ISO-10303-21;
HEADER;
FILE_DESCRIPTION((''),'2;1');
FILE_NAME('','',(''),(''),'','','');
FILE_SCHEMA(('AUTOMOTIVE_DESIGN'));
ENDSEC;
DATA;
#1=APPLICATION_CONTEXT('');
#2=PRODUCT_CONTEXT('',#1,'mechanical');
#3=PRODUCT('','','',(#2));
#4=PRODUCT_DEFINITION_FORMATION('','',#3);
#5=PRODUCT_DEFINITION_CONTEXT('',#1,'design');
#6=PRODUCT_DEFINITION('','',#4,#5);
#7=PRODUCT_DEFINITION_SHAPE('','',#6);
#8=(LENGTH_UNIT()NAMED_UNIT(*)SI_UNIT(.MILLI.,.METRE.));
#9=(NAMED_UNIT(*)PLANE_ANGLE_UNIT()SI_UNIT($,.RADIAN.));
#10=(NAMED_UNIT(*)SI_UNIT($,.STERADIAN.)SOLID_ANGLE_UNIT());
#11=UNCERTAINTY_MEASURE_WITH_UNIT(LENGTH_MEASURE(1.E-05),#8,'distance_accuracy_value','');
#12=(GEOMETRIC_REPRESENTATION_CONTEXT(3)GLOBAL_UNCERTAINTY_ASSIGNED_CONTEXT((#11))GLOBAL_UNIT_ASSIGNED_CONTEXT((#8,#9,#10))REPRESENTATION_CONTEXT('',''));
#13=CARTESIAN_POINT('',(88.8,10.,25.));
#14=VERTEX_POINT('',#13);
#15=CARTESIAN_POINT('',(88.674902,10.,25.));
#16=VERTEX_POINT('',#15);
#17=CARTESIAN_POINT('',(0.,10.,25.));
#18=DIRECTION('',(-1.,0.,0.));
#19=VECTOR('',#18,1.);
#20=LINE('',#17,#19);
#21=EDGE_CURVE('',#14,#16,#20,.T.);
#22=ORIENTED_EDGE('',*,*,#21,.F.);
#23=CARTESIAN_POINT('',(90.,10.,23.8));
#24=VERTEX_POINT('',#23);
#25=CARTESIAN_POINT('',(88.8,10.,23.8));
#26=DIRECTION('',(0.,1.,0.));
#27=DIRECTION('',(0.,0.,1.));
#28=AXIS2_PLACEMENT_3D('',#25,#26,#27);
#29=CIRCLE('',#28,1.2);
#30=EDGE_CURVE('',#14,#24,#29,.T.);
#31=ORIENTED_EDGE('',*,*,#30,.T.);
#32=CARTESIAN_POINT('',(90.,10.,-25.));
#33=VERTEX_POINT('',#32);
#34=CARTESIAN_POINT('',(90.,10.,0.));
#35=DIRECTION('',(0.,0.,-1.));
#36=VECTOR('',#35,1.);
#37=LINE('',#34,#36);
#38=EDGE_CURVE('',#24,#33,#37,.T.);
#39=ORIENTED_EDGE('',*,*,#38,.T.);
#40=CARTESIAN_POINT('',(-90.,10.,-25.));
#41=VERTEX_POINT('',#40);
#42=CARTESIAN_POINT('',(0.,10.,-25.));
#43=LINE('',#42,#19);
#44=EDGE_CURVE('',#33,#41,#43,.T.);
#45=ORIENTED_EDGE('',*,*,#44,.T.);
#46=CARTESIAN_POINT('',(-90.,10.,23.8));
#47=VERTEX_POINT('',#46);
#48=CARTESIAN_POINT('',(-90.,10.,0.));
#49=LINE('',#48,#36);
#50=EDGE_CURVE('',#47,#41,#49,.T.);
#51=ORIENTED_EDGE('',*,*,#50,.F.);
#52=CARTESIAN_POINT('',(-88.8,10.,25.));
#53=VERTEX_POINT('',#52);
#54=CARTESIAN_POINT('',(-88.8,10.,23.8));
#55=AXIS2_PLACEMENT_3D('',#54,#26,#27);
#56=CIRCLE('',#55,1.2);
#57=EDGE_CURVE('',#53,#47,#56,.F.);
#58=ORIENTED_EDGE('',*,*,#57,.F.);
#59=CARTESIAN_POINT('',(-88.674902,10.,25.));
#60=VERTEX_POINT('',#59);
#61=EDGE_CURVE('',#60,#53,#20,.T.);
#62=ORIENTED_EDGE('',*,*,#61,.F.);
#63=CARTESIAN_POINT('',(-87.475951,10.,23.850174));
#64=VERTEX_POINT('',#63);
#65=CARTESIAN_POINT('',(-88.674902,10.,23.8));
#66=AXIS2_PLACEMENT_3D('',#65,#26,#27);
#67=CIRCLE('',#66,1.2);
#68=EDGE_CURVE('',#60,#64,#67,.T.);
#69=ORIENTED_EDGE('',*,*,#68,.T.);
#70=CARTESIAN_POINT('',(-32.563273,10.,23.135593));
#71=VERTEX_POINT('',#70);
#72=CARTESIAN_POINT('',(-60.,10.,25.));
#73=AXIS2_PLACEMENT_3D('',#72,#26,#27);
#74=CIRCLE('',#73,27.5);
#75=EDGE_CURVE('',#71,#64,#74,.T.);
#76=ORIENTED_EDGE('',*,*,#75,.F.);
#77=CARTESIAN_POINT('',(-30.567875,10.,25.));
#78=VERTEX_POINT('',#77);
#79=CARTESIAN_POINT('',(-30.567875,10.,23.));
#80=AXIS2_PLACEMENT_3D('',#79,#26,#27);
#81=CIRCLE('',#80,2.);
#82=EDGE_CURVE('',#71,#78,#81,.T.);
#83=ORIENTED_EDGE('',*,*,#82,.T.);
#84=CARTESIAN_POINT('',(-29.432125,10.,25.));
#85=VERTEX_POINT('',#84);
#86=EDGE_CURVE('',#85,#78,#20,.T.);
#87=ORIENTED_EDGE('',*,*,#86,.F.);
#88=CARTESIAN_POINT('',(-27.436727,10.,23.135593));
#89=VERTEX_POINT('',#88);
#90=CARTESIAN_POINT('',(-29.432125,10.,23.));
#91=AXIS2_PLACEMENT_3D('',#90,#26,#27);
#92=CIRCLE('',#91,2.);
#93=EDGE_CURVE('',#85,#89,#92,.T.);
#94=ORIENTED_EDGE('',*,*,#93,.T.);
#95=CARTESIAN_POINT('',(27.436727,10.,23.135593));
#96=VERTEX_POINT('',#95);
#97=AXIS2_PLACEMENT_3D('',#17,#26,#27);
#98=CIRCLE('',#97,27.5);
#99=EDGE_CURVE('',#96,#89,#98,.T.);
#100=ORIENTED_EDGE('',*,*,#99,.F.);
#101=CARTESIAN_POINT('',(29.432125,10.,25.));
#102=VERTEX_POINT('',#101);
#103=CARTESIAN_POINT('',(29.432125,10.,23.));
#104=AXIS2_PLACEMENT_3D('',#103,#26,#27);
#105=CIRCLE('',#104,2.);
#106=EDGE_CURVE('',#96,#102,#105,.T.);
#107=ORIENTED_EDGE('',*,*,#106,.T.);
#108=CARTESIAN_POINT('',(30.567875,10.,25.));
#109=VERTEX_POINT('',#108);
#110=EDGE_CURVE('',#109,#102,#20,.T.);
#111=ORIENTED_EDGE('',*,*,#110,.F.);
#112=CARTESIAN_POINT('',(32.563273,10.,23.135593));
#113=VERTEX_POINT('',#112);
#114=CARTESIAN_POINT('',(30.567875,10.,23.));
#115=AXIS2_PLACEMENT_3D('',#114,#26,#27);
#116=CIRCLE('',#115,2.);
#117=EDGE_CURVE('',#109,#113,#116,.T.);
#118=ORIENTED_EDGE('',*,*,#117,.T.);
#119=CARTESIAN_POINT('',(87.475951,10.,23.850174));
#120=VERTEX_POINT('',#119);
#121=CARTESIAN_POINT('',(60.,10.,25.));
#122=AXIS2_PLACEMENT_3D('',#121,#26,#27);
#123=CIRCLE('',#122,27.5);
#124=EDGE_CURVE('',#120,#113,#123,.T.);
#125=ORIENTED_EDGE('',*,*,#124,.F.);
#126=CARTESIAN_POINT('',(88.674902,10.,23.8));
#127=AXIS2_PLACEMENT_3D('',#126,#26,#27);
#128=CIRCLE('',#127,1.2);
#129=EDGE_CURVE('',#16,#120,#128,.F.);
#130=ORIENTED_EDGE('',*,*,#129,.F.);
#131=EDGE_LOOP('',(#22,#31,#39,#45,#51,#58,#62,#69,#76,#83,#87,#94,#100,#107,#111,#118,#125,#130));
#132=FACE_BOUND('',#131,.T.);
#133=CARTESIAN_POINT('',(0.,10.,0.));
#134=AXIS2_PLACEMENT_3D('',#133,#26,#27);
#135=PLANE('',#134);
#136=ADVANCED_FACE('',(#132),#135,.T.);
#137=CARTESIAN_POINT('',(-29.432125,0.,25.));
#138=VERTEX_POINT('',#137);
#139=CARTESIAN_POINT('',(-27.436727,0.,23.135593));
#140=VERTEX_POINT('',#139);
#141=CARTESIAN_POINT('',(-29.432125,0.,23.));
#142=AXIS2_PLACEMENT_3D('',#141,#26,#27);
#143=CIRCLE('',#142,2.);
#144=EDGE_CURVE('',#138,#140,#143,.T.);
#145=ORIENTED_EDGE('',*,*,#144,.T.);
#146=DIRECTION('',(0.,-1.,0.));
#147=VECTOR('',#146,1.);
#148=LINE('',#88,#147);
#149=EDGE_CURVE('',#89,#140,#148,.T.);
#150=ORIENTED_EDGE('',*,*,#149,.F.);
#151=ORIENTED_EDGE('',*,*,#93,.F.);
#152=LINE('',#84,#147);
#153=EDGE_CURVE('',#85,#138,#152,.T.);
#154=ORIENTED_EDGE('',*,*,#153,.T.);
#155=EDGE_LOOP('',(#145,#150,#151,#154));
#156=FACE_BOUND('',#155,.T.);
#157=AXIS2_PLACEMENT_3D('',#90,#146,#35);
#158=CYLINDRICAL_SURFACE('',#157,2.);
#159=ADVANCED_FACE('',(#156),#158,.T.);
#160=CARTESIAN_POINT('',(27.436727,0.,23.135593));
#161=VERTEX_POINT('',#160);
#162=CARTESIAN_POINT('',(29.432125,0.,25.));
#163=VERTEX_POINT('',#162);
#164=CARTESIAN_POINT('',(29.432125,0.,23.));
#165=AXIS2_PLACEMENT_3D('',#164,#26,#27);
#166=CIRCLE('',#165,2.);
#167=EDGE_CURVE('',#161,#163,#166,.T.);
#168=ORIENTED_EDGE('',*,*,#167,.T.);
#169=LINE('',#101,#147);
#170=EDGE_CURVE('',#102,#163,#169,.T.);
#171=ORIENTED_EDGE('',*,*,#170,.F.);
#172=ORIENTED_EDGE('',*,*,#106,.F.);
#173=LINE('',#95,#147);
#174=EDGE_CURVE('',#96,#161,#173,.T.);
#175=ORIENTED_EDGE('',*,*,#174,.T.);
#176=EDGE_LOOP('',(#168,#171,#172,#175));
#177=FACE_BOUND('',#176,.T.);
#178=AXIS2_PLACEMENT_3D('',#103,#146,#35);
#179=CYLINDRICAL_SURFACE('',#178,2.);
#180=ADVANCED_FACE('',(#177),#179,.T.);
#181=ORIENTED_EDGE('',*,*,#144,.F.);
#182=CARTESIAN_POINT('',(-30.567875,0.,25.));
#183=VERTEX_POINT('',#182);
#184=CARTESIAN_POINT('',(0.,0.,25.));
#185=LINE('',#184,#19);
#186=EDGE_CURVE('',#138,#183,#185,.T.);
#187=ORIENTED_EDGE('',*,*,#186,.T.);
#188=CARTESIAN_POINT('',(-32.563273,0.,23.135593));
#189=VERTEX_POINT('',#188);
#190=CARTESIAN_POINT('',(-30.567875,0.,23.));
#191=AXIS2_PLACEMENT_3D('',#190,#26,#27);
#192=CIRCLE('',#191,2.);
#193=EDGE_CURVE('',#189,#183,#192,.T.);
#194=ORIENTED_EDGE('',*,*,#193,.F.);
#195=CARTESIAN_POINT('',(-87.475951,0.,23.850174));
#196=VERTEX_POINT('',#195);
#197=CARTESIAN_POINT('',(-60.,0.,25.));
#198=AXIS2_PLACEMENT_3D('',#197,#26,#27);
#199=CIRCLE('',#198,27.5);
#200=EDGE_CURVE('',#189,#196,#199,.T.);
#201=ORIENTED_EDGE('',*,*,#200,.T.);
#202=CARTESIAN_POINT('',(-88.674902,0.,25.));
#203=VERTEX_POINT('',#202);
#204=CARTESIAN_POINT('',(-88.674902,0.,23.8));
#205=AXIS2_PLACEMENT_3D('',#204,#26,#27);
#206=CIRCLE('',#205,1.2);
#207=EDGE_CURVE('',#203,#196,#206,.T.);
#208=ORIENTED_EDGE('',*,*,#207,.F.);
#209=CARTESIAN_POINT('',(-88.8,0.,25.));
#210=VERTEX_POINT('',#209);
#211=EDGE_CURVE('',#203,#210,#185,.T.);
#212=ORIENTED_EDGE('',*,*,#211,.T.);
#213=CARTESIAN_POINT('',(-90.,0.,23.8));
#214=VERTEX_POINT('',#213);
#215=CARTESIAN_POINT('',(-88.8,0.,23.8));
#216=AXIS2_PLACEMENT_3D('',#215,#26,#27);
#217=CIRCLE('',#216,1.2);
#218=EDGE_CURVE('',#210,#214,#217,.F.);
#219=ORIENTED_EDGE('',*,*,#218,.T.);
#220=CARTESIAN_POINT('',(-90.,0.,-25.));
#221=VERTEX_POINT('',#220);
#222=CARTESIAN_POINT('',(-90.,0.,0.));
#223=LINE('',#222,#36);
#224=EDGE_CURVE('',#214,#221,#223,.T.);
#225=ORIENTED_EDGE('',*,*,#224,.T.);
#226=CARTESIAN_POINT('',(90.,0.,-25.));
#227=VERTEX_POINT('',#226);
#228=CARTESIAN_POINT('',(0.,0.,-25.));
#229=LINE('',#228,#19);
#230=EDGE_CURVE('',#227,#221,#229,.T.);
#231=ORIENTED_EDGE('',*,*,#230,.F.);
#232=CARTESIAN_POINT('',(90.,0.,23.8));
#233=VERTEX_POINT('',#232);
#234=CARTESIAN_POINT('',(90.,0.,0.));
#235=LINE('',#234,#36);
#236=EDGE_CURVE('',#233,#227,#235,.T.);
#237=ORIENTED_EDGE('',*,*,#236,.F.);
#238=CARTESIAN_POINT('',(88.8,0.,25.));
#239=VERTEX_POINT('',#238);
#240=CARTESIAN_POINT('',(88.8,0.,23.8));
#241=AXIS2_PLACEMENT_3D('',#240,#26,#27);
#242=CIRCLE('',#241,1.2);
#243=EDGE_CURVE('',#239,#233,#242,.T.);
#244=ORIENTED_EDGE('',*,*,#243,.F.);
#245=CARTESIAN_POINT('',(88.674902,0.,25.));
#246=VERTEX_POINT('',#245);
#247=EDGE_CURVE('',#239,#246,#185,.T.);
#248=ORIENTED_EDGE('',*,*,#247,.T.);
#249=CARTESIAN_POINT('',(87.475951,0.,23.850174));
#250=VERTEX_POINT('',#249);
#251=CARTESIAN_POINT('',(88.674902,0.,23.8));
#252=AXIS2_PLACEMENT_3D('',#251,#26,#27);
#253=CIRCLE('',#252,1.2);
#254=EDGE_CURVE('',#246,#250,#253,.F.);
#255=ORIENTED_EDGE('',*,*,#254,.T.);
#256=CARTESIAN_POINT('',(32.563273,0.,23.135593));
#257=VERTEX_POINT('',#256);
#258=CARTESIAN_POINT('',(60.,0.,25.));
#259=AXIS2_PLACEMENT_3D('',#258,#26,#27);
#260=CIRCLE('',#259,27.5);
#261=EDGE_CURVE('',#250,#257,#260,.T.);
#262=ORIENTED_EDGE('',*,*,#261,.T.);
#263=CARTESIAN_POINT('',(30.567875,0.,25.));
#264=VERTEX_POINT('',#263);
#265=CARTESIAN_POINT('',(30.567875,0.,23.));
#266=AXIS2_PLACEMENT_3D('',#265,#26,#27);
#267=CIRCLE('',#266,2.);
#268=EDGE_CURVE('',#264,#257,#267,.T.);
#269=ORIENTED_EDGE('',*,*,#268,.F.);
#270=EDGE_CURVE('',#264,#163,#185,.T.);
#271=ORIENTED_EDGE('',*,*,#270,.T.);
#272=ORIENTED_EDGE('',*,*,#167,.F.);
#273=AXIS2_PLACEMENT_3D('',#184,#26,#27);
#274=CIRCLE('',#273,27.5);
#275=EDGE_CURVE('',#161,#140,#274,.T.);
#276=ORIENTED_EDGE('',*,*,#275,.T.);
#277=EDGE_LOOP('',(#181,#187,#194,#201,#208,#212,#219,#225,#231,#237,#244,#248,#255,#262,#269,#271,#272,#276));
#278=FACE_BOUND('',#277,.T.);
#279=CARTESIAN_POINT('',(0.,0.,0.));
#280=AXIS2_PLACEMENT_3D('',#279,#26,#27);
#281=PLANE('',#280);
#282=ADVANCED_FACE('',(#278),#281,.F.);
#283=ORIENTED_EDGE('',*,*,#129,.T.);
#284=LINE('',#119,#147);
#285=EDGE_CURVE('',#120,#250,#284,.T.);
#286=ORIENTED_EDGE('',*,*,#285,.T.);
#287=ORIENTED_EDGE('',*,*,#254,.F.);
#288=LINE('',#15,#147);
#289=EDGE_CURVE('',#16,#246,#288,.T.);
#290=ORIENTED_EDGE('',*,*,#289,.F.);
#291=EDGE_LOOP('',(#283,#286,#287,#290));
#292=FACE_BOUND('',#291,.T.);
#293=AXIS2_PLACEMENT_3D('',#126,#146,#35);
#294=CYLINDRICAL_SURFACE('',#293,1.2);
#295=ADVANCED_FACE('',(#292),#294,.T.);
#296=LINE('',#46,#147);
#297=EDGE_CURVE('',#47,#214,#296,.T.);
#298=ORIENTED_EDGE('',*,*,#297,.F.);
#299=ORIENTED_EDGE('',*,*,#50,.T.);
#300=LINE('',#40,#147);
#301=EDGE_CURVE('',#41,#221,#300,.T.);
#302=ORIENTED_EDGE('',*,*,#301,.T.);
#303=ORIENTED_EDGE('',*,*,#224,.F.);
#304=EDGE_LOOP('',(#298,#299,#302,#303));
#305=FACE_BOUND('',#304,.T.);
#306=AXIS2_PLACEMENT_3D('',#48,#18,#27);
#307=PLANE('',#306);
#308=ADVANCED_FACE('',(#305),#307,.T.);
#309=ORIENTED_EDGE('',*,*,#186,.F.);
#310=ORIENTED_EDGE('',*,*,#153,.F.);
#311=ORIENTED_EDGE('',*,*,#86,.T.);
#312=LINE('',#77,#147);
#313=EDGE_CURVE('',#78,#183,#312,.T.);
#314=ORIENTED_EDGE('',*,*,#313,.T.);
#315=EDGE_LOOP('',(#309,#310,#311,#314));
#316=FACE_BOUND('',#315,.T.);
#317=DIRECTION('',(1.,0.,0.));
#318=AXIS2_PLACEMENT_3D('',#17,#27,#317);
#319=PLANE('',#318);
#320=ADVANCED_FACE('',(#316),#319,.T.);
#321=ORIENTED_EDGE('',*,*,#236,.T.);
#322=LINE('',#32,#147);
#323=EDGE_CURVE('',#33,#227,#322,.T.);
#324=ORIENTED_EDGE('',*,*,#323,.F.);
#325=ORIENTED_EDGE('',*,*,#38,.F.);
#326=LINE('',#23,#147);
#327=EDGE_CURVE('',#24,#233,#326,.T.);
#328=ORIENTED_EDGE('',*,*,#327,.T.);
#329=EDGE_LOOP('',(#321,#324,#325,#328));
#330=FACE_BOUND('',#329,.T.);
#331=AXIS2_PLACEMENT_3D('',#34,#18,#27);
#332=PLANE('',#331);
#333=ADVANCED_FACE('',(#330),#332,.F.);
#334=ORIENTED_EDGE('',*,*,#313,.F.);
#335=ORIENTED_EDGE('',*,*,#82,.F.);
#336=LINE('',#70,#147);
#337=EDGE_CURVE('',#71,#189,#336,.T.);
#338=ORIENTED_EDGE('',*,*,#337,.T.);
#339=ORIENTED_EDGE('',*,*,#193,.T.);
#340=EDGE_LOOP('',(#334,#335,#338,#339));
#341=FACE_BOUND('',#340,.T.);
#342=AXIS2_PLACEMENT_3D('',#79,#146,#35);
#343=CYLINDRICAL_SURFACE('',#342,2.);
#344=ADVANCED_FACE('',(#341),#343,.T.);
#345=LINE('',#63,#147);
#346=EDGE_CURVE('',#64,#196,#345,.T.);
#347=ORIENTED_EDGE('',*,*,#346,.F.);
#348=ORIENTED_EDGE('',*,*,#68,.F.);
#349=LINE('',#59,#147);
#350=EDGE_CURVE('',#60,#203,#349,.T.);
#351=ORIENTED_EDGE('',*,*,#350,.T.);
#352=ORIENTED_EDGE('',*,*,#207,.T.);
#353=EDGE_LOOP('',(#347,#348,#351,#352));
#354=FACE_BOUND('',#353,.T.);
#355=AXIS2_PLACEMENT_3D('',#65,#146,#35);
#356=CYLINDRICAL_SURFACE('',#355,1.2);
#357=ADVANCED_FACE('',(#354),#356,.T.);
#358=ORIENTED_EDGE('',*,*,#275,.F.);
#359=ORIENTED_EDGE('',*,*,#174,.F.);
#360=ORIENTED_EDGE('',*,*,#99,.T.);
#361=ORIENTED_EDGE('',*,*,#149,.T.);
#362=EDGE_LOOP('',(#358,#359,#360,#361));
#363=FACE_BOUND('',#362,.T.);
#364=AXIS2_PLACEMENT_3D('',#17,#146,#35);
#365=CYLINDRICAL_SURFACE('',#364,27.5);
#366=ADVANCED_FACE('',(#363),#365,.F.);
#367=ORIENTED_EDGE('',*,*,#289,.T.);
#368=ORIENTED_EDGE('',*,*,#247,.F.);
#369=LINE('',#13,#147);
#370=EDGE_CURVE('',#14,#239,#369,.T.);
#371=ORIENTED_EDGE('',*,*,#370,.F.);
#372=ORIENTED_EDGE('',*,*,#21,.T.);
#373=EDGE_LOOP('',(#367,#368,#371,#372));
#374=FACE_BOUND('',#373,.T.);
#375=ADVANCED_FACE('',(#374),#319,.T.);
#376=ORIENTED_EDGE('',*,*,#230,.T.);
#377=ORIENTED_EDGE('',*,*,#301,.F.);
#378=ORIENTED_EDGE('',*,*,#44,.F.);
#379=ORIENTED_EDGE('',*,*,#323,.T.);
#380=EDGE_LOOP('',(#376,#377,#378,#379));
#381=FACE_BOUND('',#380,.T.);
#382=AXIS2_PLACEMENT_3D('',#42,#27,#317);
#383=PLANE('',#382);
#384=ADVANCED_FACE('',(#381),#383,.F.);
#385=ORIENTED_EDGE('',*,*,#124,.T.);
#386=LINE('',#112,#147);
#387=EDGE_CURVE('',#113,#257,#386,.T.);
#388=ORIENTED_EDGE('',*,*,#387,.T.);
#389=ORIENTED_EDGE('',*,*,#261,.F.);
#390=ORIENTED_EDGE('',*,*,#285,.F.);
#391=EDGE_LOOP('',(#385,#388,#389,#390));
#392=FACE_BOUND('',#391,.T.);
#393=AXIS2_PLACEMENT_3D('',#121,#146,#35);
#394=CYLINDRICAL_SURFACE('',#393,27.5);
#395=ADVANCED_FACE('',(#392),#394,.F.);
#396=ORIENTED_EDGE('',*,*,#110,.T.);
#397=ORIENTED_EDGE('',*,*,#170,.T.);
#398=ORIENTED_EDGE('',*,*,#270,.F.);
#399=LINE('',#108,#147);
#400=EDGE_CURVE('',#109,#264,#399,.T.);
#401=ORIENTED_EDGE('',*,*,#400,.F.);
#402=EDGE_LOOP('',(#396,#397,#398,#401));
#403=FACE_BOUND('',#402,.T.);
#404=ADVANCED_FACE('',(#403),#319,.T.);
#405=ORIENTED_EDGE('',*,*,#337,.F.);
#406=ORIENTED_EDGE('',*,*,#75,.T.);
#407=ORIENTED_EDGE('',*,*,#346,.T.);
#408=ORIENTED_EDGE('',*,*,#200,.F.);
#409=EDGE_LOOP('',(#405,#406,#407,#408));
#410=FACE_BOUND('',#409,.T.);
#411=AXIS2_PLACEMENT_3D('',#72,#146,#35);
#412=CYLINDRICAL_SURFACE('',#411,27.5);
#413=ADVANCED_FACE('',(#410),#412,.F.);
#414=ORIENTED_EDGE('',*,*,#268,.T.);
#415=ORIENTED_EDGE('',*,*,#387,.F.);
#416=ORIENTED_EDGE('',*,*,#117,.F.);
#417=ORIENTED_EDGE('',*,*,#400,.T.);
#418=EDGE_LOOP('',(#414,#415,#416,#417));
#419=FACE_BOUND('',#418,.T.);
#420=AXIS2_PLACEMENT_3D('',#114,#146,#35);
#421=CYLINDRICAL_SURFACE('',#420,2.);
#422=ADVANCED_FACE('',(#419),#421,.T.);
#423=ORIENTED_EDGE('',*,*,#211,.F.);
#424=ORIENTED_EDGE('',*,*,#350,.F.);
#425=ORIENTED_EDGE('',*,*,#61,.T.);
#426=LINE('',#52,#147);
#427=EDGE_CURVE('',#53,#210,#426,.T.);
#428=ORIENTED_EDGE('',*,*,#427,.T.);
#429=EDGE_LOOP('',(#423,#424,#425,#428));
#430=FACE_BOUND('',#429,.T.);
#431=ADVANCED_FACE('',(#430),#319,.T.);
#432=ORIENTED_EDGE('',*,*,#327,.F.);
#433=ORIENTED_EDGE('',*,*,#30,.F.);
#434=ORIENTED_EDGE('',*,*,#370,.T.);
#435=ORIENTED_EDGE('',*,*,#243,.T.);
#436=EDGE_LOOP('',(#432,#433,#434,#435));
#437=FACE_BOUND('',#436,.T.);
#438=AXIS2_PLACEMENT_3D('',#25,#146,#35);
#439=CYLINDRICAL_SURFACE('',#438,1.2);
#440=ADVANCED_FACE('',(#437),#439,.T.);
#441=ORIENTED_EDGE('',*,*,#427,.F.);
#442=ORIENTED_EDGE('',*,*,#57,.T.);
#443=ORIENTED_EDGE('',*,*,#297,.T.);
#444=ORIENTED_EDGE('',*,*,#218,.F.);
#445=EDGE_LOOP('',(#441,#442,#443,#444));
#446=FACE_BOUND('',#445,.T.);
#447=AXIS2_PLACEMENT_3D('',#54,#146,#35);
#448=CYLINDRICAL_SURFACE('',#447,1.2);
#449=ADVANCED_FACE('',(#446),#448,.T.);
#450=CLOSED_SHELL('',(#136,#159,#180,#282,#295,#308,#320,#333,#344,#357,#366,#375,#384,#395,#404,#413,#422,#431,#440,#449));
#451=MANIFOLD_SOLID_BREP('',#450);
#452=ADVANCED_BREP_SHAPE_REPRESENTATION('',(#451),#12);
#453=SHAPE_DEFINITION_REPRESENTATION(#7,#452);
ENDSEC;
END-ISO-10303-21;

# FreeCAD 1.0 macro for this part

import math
import FreeCAD as App
import Part
import Sketcher
from FreeCAD import Vector

doc = App.newDocument("Part")
body = doc.addObject("PartDesign::Body", "Body")

# Sketch on XZ plane
sketch1 = body.newObject("Sketcher::SketchObject", "Sketch")
sketch1.AttachmentSupport = (doc.getObject("XZ_Plane"), [""])
sketch1.MapMode = "FlatFace"
sketch1.addGeometry([
    Part.LineSegment(Vector(-88.8, 25, 0), Vector(-88.67, 25, 0)),  # 0
    Part.ArcOfCircle(Part.Circle(Vector(-88.67, 23.8, 0), Vector(0, 0, 1), 1.2), math.radians(2), math.radians(90)),  # 1
    Part.ArcOfCircle(Part.Circle(Vector(-60, 25, 0), Vector(0, 0, 1), 27.5), math.radians(-178), math.radians(-4)),  # 2
    Part.ArcOfCircle(Part.Circle(Vector(-30.57, 23, 0), Vector(0, 0, 1), 2), math.radians(90), math.radians(176)),  # 3
    Part.LineSegment(Vector(-30.57, 25, 0), Vector(-29.43, 25, 0)),  # 4
    Part.ArcOfCircle(Part.Circle(Vector(-29.43, 23, 0), Vector(0, 0, 1), 2), math.radians(4), math.radians(90)),  # 5
    Part.ArcOfCircle(Part.Circle(Vector(0, 25, 0), Vector(0, 0, 1), 27.5), math.radians(-176), math.radians(-4)),  # 6
    Part.ArcOfCircle(Part.Circle(Vector(29.43, 23, 0), Vector(0, 0, 1), 2), math.radians(90), math.radians(176)),  # 7
    Part.LineSegment(Vector(29.43, 25, 0), Vector(30.57, 25, 0)),  # 8
    Part.ArcOfCircle(Part.Circle(Vector(30.57, 23, 0), Vector(0, 0, 1), 2), math.radians(4), math.radians(90)),  # 9
    Part.ArcOfCircle(Part.Circle(Vector(60, 25, 0), Vector(0, 0, 1), 27.5), math.radians(-176), math.radians(-2)),  # 10
    Part.ArcOfCircle(Part.Circle(Vector(88.67, 23.8, 0), Vector(0, 0, 1), 1.2), math.radians(90), math.radians(178)),  # 11
    Part.LineSegment(Vector(88.67, 25, 0), Vector(88.8, 25, 0)),  # 12
    Part.ArcOfCircle(Part.Circle(Vector(88.8, 23.8, 0), Vector(0, 0, 1), 1.2), math.radians(0), math.radians(90)),  # 13
    Part.LineSegment(Vector(90, 23.8, 0), Vector(90, -25, 0)),  # 14
    Part.LineSegment(Vector(90, -25, 0), Vector(-90, -25, 0)),  # 15
    Part.LineSegment(Vector(-90, -25, 0), Vector(-90, 23.8, 0)),  # 16
    Part.ArcOfCircle(Part.Circle(Vector(-88.8, 23.8, 0), Vector(0, 0, 1), 1.2), math.radians(90), math.radians(180)),  # 17
], False)
sketch1.addConstraint([
    Sketcher.Constraint("Tangent", 0, 2, 1, 2),
    Sketcher.Constraint("Tangent", 1, 1, 2, 1),
    Sketcher.Constraint("Tangent", 2, 2, 3, 2),
    Sketcher.Constraint("Tangent", 3, 1, 4, 1),
    Sketcher.Constraint("Tangent", 4, 2, 5, 2),
    Sketcher.Constraint("Tangent", 5, 1, 6, 1),
    Sketcher.Constraint("Tangent", 6, 2, 7, 2),
    Sketcher.Constraint("Tangent", 7, 1, 8, 1),
    Sketcher.Constraint("Tangent", 8, 2, 9, 2),
    Sketcher.Constraint("Tangent", 9, 1, 10, 1),
    Sketcher.Constraint("Tangent", 10, 2, 11, 2),
    Sketcher.Constraint("Tangent", 11, 1, 12, 1),
    Sketcher.Constraint("Tangent", 12, 2, 13, 2),
    Sketcher.Constraint("Tangent", 13, 1, 14, 1),
    Sketcher.Constraint("Coincident", 14, 2, 15, 1),
    Sketcher.Constraint("Coincident", 15, 2, 16, 1),
    Sketcher.Constraint("Tangent", 16, 2, 17, 2),
    Sketcher.Constraint("Tangent", 17, 1, 0, 1),
    Sketcher.Constraint("Horizontal", 0),
    Sketcher.Constraint("Horizontal", 4),
    Sketcher.Constraint("Horizontal", 8),
    Sketcher.Constraint("Horizontal", 12),
    Sketcher.Constraint("Vertical", 14),
    Sketcher.Constraint("Horizontal", 15),
    Sketcher.Constraint("Vertical", 16),
    Sketcher.Constraint("Equal", 3, 5),
    Sketcher.Constraint("Equal", 2, 6),
    Sketcher.Constraint("Equal", 5, 7),
    Sketcher.Constraint("Equal", 7, 9),
    Sketcher.Constraint("Equal", 6, 10),
    Sketcher.Constraint("Equal", 1, 11),
    Sketcher.Constraint("Equal", 11, 13),
    Sketcher.Constraint("Equal", 13, 17),
    Sketcher.Constraint("Symmetric", 5, 3, 7, 3, -2),
    Sketcher.Constraint("Symmetric", 2, 3, 10, 3, -2),
    Sketcher.Constraint("Symmetric", 13, 3, 17, 3, -2),
    Sketcher.Constraint("Horizontal", 2, 3, 6, 3),
    Sketcher.Constraint("Horizontal", 10, 3, 0, 2),
    Sketcher.Constraint("Horizontal", 0, 2, 3, 1),
    Sketcher.Constraint("Radius", 3, 2.0),
    Sketcher.Constraint("Radius", 1, 1.2),
    Sketcher.Constraint("Radius", 2, 27.5),
    Sketcher.Constraint("DistanceX", 15, 2, 15, 1, 180.0),
    Sketcher.Constraint("DistanceY", 14, 2, 14, 1, 48.8),
    Sketcher.Constraint("DistanceX", 2, 3, -1, 1, 60.0),
    Sketcher.Constraint("DistanceY", -1, 1, 2, 3, 25.0),
])
pad1 = body.newObject("PartDesign::Pad", "Pad")
pad1.Profile = sketch1
pad1.Length = 10
pad1.Reversed = True

doc.recompute()
